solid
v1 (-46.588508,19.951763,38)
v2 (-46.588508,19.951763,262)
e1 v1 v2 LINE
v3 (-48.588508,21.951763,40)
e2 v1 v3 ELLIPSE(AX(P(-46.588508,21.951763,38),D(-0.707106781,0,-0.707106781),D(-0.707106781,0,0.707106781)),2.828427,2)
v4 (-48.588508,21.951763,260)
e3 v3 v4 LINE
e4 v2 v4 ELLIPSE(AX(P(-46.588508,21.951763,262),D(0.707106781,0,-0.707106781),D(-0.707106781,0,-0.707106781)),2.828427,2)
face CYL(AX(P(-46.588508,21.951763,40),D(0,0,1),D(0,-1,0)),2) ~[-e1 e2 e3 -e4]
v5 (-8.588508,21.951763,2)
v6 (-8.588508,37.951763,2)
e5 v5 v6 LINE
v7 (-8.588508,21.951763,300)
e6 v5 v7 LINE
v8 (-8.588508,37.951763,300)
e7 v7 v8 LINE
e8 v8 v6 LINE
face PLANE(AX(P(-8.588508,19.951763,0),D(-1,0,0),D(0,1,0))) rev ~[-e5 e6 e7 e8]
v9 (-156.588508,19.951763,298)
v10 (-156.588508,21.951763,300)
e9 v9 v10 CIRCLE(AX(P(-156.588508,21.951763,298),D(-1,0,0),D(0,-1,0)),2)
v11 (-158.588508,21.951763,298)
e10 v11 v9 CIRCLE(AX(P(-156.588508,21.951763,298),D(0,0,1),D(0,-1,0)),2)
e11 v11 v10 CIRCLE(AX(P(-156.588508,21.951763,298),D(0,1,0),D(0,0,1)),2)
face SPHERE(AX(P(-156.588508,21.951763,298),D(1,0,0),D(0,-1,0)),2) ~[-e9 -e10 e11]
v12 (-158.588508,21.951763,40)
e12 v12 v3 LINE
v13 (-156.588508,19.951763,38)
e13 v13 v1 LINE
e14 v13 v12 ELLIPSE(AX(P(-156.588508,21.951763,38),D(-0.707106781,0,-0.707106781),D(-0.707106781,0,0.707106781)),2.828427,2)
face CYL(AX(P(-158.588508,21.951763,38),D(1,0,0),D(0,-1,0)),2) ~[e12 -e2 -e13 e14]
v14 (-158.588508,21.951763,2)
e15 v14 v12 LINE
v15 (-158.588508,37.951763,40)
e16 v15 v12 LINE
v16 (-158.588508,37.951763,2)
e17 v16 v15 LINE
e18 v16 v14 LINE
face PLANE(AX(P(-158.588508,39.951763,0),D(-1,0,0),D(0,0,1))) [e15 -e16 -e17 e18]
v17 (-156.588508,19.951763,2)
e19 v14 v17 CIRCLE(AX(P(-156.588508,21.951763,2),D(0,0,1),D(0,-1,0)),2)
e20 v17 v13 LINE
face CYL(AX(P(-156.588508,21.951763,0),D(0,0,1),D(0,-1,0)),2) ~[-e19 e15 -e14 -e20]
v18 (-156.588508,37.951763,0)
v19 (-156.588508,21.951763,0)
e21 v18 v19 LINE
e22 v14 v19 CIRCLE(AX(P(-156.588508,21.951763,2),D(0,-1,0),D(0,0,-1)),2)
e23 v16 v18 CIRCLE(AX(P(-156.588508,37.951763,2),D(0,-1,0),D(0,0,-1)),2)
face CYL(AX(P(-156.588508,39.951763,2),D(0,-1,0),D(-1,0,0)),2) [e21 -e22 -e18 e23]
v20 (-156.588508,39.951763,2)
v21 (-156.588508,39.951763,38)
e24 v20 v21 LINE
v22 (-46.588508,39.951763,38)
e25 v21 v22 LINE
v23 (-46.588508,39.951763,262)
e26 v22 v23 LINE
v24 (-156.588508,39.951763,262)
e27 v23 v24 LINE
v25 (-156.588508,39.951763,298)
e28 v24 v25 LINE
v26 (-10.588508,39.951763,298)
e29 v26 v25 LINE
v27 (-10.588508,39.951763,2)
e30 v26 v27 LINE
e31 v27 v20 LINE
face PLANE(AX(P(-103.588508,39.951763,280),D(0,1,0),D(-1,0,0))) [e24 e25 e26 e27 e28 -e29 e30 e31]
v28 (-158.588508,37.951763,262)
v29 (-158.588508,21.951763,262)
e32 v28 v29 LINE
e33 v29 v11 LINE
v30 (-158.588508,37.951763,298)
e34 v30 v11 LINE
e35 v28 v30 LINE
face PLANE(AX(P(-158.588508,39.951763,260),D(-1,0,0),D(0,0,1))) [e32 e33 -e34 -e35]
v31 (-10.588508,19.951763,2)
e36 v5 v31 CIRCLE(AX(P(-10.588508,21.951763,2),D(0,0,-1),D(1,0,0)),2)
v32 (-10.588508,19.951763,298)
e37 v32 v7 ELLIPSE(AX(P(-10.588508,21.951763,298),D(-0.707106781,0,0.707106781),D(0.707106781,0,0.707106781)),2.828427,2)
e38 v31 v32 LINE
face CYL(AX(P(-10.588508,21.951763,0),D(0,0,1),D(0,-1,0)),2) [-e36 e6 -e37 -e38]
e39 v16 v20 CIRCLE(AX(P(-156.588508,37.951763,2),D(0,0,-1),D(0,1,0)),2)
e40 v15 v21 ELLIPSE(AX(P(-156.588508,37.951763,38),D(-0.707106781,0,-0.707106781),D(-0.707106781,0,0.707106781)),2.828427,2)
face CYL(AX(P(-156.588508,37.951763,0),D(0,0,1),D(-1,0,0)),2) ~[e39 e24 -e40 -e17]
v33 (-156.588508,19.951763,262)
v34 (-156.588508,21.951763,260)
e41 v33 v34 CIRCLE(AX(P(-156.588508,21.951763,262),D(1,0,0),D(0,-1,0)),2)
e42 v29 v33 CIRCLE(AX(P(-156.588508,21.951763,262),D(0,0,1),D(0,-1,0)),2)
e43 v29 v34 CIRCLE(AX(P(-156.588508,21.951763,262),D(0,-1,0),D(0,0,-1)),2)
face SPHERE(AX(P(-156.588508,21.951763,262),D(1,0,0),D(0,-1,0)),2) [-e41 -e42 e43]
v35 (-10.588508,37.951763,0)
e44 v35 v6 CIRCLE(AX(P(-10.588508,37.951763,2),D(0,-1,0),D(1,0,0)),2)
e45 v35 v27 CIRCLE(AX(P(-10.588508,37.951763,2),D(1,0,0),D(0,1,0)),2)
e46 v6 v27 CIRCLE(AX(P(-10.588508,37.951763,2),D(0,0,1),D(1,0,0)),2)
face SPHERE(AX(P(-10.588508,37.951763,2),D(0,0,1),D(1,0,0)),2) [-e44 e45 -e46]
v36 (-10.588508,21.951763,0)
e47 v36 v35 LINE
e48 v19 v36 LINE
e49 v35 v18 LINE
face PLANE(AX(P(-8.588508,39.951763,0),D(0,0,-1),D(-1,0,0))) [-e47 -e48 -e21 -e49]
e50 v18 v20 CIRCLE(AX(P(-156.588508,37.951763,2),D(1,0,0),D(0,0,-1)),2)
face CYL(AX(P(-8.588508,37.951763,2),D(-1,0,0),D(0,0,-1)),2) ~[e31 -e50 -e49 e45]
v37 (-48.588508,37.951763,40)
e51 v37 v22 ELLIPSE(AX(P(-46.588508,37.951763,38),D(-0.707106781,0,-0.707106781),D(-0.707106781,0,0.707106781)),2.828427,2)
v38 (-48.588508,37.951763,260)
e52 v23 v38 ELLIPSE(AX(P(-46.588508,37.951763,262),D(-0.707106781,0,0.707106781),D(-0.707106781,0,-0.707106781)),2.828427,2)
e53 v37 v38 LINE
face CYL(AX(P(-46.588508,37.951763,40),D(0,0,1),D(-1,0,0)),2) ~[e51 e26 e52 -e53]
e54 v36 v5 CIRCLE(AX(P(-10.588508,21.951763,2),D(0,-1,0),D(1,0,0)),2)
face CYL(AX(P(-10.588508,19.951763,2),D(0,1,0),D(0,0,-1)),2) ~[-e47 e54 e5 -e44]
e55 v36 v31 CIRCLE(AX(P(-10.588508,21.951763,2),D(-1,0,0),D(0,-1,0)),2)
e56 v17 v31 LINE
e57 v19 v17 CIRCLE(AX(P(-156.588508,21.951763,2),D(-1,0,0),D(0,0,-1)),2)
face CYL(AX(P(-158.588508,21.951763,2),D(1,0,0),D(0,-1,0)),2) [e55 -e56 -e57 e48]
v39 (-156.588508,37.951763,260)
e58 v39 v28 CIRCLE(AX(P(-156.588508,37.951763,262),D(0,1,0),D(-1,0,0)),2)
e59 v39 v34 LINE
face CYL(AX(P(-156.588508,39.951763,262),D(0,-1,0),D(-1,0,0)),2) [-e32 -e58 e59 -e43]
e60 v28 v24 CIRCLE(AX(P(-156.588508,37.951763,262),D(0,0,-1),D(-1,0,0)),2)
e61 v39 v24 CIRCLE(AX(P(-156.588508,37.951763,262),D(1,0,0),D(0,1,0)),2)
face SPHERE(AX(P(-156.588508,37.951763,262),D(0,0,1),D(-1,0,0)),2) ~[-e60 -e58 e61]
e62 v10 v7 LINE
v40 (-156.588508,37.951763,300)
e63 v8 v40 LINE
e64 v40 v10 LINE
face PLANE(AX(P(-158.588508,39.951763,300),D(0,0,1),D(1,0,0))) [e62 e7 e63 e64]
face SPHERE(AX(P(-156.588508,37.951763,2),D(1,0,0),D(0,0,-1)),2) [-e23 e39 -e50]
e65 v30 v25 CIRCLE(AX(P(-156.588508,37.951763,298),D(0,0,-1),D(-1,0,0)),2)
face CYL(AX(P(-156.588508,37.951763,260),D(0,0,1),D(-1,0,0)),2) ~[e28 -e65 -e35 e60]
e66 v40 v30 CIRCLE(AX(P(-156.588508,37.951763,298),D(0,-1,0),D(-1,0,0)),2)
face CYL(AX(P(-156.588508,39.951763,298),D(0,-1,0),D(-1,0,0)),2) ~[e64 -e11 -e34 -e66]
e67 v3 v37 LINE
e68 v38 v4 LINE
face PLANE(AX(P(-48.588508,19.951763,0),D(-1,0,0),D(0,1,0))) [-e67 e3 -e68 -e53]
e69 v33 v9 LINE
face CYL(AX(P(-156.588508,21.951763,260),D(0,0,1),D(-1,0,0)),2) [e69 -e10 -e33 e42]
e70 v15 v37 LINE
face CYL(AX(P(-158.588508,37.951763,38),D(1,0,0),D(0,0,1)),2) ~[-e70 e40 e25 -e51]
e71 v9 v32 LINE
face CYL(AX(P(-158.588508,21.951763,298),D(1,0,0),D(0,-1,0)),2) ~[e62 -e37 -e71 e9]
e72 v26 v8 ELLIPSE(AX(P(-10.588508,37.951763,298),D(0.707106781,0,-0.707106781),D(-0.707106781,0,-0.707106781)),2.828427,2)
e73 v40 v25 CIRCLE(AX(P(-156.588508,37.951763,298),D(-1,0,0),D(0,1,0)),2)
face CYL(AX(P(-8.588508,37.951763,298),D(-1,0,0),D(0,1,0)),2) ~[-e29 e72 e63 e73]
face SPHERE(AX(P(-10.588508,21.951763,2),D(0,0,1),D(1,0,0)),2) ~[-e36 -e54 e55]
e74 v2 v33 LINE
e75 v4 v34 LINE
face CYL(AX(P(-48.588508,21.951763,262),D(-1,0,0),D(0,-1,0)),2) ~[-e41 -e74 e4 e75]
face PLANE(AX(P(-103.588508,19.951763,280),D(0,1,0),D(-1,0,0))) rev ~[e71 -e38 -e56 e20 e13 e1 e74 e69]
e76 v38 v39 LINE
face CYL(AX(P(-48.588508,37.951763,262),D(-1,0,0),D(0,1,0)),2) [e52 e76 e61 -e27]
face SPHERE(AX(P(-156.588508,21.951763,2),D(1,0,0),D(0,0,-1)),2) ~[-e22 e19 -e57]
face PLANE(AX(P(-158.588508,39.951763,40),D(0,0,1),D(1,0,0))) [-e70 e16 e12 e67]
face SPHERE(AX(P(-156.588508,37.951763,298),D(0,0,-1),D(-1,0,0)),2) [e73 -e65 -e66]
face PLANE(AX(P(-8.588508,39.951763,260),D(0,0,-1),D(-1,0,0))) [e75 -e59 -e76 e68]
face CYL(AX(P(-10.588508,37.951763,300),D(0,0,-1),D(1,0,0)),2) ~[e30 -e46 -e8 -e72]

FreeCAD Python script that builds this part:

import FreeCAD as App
import Part
import Sketcher
Q = App.Units.Quantity


def edges_at(feature, points):
    """Names of the edges that pass closest to the given points."""
    edges = feature.Shape.Edges
    near = lambda p: min(range(len(edges)), key=lambda i: edges[i].distToShape(Part.Vertex(*p))[0])
    return sorted({f"Edge{near(p) + 1}" for p in points})

doc = App.newDocument("Part")
body = doc.addObject("PartDesign::Body", "Body")

sketch1 = body.newObject("Sketcher::SketchObject", "Sketch")
sketch1.AttachmentSupport = (doc.getObject("XY_Plane"), [""])
sketch1.MapMode = "FlatFace"
sketch1.addGeometry([
    Part.LineSegment(App.Vector(-49, 40, 0), App.Vector(-49, 20, 0)),
    Part.LineSegment(App.Vector(-49, 20, 0), App.Vector(-9, 20, 0)),
    Part.LineSegment(App.Vector(-9, 20, 0), App.Vector(-9, 40, 0)),
    Part.LineSegment(App.Vector(-9, 40, 0), App.Vector(-49, 40, 0)),
], False)
sketch1.addConstraint([
    Sketcher.Constraint("Coincident", 0, 2, 1, 1),
    Sketcher.Constraint("Coincident", 1, 2, 2, 1),
    Sketcher.Constraint("Coincident", 2, 2, 3, 1),
    Sketcher.Constraint("Coincident", 3, 2, 0, 1),
    Sketcher.Constraint("Vertical", 0),
    Sketcher.Constraint("Horizontal", 1),
    Sketcher.Constraint("Vertical", 2),
    Sketcher.Constraint("Horizontal", 3),
    Sketcher.Constraint("DistanceX", 1, 1, 1, 2, Q("40 mm")),
    Sketcher.Constraint("DistanceY", 0, 2, 0, 1, Q("20 mm")),
    Sketcher.Constraint("DistanceX", 0, 2, -1, 1, Q("48.588508 mm")),
    Sketcher.Constraint("DistanceY", -1, 1, 0, 2, Q("19.951763 mm")),
])
pad1 = body.newObject("PartDesign::Pad", "Pad")
pad1.Profile = sketch1
pad1.Length = 300

sketch2 = body.newObject("Sketcher::SketchObject", "Sketch001")
sketch2.AttachmentSupport = (doc.getObject("XZ_Plane"), [""])
sketch2.MapMode = "FlatFace"
sketch2.AttachmentOffset = App.Placement(App.Vector(0, 0, -39.951763), App.Rotation())
sketch2.addGeometry([
    Part.LineSegment(App.Vector(-159, 260, 0), App.Vector(-159, 300, 0)),
    Part.LineSegment(App.Vector(-159, 300, 0), App.Vector(-9, 300, 0)),
    Part.LineSegment(App.Vector(-9, 300, 0), App.Vector(-9, 260, 0)),
    Part.LineSegment(App.Vector(-9, 260, 0), App.Vector(-159, 260, 0)),
    Part.LineSegment(App.Vector(-9, 40, 0), App.Vector(-9, 0, 0)),
    Part.LineSegment(App.Vector(-9, 0, 0), App.Vector(-159, 0, 0)),
    Part.LineSegment(App.Vector(-159, 0, 0), App.Vector(-159, 40, 0)),
    Part.LineSegment(App.Vector(-159, 40, 0), App.Vector(-9, 40, 0)),
], False)
sketch2.addConstraint([
    Sketcher.Constraint("Coincident", 0, 2, 1, 1),
    Sketcher.Constraint("Coincident", 1, 2, 2, 1),
    Sketcher.Constraint("Coincident", 2, 2, 3, 1),
    Sketcher.Constraint("Coincident", 3, 2, 0, 1),
    Sketcher.Constraint("Coincident", 4, 2, 5, 1),
    Sketcher.Constraint("Coincident", 5, 2, 6, 1),
    Sketcher.Constraint("Coincident", 6, 2, 7, 1),
    Sketcher.Constraint("Coincident", 7, 2, 4, 1),
    Sketcher.Constraint("Vertical", 0),
    Sketcher.Constraint("Horizontal", 1),
    Sketcher.Constraint("Vertical", 2),
    Sketcher.Constraint("Horizontal", 3),
    Sketcher.Constraint("Vertical", 4),
    Sketcher.Constraint("Horizontal", 5),
    Sketcher.Constraint("Vertical", 6),
    Sketcher.Constraint("Horizontal", 7),
    Sketcher.Constraint("PointOnObject", 4, 2, -1),
    Sketcher.Constraint("Vertical", 2, 2, 4, 2),
    Sketcher.Constraint("Vertical", 3, 2, 5, 2),
    Sketcher.Constraint("Equal", 2, 4),
    Sketcher.Constraint("DistanceX", 1, 1, 1, 2, Q("150 mm")),
    Sketcher.Constraint("DistanceY", 0, 1, 0, 2, Q("40 mm")),
    Sketcher.Constraint("DistanceY", -1, 1, 0, 2, Q("300 mm")),
    Sketcher.Constraint("DistanceX", 0, 2, -1, 1, Q("158.588508 mm")),
])
pad2 = body.newObject("PartDesign::Pad", "Pad001")
pad2.Profile = sketch2
pad2.Length = 20
doc.recompute()

fillet = body.newObject("PartDesign::Fillet", "Fillet")
fillet.Base = (pad2, edges_at(pad2, [
    (-103.589, 19.952, 260),
    (-48.589, 19.952, 150),
    (-8.589, 19.952, 150),
    (-83.589, 19.952, 300),
    (-158.589, 19.952, 280),
    (-158.589, 39.952, 280),
    (-158.589, 29.952, 260),
    (-158.589, 29.952, 300),
    (-83.589, 39.952, 300),
    (-103.589, 39.952, 260),
    (-48.589, 39.952, 150),
    (-8.589, 39.952, 150),
    (-8.589, 29.952, 0),
    (-83.589, 39.952, 0),
    (-83.589, 19.952, 0),
    (-158.589, 29.952, 0),
    (-158.589, 39.952, 20),
    (-158.589, 19.952, 20),
    (-103.589, 19.952, 40),
    (-103.589, 39.952, 40),
]))
fillet.Radius = 2

doc.recompute()
